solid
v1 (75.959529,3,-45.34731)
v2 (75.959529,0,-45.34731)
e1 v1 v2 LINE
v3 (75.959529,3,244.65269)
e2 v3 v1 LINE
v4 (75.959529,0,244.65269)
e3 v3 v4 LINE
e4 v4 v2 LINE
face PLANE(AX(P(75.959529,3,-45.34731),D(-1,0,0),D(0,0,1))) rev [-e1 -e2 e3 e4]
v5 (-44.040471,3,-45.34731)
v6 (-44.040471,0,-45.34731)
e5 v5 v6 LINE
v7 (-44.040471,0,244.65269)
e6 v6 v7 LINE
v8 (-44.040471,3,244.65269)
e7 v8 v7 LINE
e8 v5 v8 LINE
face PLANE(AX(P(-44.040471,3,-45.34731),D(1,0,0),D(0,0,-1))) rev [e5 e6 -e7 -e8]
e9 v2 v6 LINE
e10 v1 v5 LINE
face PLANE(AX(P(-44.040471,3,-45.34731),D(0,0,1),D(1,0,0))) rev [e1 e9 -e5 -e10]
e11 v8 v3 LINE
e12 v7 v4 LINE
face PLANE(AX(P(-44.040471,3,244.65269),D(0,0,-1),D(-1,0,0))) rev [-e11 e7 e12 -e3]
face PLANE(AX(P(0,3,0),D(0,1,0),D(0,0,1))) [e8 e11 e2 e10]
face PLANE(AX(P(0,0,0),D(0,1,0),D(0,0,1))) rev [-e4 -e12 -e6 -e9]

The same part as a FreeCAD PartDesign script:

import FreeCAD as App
import Part
import Sketcher
from FreeCAD import Vector
Q = App.Units.Quantity

doc = App.newDocument("Part")
body = doc.addObject("PartDesign::Body", "Body")

sketch1 = body.newObject("Sketcher::SketchObject", "Sketch")
sketch1.AttachmentSupport = (doc.getObject("XZ_Plane"), [""])
sketch1.MapMode = "FlatFace"
sketch1.addGeometry([
    Part.LineSegment(Vector(-44, -45, 0), Vector(-44, 245, 0)),
    Part.LineSegment(Vector(-44, 245, 0), Vector(76, 245, 0)),
    Part.LineSegment(Vector(76, 245, 0), Vector(76, -45, 0)),
    Part.LineSegment(Vector(76, -45, 0), Vector(-44, -45, 0)),
], False)
sketch1.addConstraint([
    Sketcher.Constraint("Coincident", 0, 2, 1, 1),
    Sketcher.Constraint("Coincident", 1, 2, 2, 1),
    Sketcher.Constraint("Coincident", 2, 2, 3, 1),
    Sketcher.Constraint("Coincident", 3, 2, 0, 1),
    Sketcher.Constraint("Vertical", 0),
    Sketcher.Constraint("Horizontal", 1),
    Sketcher.Constraint("Vertical", 2),
    Sketcher.Constraint("Horizontal", 3),
    Sketcher.Constraint("DistanceX", 1, 1, 1, 2, Q("120 mm")),
    Sketcher.Constraint("DistanceY", 0, 1, 0, 2, Q("290 mm")),
    Sketcher.Constraint("DistanceX", 0, 2, -1, 1, Q("44.040471 mm")),
    Sketcher.Constraint("DistanceY", -1, 1, 0, 2, Q("244.65269 mm")),
])
pad1 = body.newObject("PartDesign::Pad", "Pad")
pad1.Profile = sketch1
pad1.Length = 3
pad1.Reversed = True

doc.recompute()
